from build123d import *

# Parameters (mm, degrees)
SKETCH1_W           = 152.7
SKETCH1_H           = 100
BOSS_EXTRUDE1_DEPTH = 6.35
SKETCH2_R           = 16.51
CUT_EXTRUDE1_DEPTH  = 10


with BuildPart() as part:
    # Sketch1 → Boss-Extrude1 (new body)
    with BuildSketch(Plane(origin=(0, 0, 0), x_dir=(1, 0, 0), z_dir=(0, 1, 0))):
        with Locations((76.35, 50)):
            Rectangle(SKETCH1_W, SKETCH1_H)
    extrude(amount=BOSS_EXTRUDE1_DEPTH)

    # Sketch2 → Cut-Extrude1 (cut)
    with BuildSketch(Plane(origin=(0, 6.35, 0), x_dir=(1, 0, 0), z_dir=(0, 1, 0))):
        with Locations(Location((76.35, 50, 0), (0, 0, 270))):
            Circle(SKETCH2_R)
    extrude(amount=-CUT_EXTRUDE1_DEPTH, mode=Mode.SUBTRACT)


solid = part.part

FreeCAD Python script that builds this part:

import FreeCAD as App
import Part
import Sketcher

doc = App.newDocument("Part")
body = doc.addObject("PartDesign::Body", "Body")

sketch1 = doc.addObject("Sketcher::SketchObject", "Sketch")
body.addObject(sketch1)
sketch1.AttachmentSupport = (doc.XZ_Plane, [""])
sketch1.MapMode = "FlatFace"
sketch1.addGeometry(Part.LineSegment(App.Vector(0, -100, 0), App.Vector(0, 0, 0)), False)
sketch1.addGeometry(Part.LineSegment(App.Vector(0, 0, 0), App.Vector(152.7, 0, 0)), False)
sketch1.addGeometry(Part.LineSegment(App.Vector(152.7, 0, 0), App.Vector(152.7, -100, 0)), False)
sketch1.addGeometry(Part.LineSegment(App.Vector(152.7, -100, 0), App.Vector(0, -100, 0)), False)
sketch1.addConstraint(Sketcher.Constraint("Coincident", 0, 2, 1, 1))
sketch1.addConstraint(Sketcher.Constraint("Coincident", 1, 2, 2, 1))
sketch1.addConstraint(Sketcher.Constraint("Coincident", 2, 2, 3, 1))
sketch1.addConstraint(Sketcher.Constraint("Coincident", 3, 2, 0, 1))
sketch1.addConstraint(Sketcher.Constraint("Vertical", 0))
sketch1.addConstraint(Sketcher.Constraint("Horizontal", 1))
sketch1.addConstraint(Sketcher.Constraint("Vertical", 2))
sketch1.addConstraint(Sketcher.Constraint("Horizontal", 3))
sketch1.addConstraint(Sketcher.Constraint("Coincident", 0, 2, -1, 1))
sketch1.addConstraint(Sketcher.Constraint("DistanceY", 0, 1, 0, 2, 100.0))
sketch1.addConstraint(Sketcher.Constraint("DistanceX", 1, 1, 1, 2, 152.7))
pad1 = doc.addObject("PartDesign::Pad", "Pad")
body.addObject(pad1)
pad1.Profile = sketch1
pad1.Length = 6.35
pad1.Reversed = True

sketch2 = doc.addObject("Sketcher::SketchObject", "Sketch001")
body.addObject(sketch2)
sketch2.AttachmentSupport = (doc.XZ_Plane, [""])
sketch2.MapMode = "FlatFace"
sketch2.AttachmentOffset = App.Placement(App.Vector(0, 0, -6.35), App.Rotation())
sketch2.addGeometry(Part.Circle(App.Vector(76.35, -50, 0), App.Vector(0, 0, 1), 16.51), False)
sketch2.addConstraint(Sketcher.Constraint("Diameter", 0, 33.02))
sketch2.addConstraint(Sketcher.Constraint("DistanceY", 0, 3, -1, 1, 50.0))
sketch2.addConstraint(Sketcher.Constraint("DistanceX", -1, 1, 0, 3, 76.35))
pocket1 = doc.addObject("PartDesign::Pocket", "Pocket")
body.addObject(pocket1)
pocket1.Profile = sketch2
pocket1.Length = 10
pocket1.Reversed = True

doc.recompute()
